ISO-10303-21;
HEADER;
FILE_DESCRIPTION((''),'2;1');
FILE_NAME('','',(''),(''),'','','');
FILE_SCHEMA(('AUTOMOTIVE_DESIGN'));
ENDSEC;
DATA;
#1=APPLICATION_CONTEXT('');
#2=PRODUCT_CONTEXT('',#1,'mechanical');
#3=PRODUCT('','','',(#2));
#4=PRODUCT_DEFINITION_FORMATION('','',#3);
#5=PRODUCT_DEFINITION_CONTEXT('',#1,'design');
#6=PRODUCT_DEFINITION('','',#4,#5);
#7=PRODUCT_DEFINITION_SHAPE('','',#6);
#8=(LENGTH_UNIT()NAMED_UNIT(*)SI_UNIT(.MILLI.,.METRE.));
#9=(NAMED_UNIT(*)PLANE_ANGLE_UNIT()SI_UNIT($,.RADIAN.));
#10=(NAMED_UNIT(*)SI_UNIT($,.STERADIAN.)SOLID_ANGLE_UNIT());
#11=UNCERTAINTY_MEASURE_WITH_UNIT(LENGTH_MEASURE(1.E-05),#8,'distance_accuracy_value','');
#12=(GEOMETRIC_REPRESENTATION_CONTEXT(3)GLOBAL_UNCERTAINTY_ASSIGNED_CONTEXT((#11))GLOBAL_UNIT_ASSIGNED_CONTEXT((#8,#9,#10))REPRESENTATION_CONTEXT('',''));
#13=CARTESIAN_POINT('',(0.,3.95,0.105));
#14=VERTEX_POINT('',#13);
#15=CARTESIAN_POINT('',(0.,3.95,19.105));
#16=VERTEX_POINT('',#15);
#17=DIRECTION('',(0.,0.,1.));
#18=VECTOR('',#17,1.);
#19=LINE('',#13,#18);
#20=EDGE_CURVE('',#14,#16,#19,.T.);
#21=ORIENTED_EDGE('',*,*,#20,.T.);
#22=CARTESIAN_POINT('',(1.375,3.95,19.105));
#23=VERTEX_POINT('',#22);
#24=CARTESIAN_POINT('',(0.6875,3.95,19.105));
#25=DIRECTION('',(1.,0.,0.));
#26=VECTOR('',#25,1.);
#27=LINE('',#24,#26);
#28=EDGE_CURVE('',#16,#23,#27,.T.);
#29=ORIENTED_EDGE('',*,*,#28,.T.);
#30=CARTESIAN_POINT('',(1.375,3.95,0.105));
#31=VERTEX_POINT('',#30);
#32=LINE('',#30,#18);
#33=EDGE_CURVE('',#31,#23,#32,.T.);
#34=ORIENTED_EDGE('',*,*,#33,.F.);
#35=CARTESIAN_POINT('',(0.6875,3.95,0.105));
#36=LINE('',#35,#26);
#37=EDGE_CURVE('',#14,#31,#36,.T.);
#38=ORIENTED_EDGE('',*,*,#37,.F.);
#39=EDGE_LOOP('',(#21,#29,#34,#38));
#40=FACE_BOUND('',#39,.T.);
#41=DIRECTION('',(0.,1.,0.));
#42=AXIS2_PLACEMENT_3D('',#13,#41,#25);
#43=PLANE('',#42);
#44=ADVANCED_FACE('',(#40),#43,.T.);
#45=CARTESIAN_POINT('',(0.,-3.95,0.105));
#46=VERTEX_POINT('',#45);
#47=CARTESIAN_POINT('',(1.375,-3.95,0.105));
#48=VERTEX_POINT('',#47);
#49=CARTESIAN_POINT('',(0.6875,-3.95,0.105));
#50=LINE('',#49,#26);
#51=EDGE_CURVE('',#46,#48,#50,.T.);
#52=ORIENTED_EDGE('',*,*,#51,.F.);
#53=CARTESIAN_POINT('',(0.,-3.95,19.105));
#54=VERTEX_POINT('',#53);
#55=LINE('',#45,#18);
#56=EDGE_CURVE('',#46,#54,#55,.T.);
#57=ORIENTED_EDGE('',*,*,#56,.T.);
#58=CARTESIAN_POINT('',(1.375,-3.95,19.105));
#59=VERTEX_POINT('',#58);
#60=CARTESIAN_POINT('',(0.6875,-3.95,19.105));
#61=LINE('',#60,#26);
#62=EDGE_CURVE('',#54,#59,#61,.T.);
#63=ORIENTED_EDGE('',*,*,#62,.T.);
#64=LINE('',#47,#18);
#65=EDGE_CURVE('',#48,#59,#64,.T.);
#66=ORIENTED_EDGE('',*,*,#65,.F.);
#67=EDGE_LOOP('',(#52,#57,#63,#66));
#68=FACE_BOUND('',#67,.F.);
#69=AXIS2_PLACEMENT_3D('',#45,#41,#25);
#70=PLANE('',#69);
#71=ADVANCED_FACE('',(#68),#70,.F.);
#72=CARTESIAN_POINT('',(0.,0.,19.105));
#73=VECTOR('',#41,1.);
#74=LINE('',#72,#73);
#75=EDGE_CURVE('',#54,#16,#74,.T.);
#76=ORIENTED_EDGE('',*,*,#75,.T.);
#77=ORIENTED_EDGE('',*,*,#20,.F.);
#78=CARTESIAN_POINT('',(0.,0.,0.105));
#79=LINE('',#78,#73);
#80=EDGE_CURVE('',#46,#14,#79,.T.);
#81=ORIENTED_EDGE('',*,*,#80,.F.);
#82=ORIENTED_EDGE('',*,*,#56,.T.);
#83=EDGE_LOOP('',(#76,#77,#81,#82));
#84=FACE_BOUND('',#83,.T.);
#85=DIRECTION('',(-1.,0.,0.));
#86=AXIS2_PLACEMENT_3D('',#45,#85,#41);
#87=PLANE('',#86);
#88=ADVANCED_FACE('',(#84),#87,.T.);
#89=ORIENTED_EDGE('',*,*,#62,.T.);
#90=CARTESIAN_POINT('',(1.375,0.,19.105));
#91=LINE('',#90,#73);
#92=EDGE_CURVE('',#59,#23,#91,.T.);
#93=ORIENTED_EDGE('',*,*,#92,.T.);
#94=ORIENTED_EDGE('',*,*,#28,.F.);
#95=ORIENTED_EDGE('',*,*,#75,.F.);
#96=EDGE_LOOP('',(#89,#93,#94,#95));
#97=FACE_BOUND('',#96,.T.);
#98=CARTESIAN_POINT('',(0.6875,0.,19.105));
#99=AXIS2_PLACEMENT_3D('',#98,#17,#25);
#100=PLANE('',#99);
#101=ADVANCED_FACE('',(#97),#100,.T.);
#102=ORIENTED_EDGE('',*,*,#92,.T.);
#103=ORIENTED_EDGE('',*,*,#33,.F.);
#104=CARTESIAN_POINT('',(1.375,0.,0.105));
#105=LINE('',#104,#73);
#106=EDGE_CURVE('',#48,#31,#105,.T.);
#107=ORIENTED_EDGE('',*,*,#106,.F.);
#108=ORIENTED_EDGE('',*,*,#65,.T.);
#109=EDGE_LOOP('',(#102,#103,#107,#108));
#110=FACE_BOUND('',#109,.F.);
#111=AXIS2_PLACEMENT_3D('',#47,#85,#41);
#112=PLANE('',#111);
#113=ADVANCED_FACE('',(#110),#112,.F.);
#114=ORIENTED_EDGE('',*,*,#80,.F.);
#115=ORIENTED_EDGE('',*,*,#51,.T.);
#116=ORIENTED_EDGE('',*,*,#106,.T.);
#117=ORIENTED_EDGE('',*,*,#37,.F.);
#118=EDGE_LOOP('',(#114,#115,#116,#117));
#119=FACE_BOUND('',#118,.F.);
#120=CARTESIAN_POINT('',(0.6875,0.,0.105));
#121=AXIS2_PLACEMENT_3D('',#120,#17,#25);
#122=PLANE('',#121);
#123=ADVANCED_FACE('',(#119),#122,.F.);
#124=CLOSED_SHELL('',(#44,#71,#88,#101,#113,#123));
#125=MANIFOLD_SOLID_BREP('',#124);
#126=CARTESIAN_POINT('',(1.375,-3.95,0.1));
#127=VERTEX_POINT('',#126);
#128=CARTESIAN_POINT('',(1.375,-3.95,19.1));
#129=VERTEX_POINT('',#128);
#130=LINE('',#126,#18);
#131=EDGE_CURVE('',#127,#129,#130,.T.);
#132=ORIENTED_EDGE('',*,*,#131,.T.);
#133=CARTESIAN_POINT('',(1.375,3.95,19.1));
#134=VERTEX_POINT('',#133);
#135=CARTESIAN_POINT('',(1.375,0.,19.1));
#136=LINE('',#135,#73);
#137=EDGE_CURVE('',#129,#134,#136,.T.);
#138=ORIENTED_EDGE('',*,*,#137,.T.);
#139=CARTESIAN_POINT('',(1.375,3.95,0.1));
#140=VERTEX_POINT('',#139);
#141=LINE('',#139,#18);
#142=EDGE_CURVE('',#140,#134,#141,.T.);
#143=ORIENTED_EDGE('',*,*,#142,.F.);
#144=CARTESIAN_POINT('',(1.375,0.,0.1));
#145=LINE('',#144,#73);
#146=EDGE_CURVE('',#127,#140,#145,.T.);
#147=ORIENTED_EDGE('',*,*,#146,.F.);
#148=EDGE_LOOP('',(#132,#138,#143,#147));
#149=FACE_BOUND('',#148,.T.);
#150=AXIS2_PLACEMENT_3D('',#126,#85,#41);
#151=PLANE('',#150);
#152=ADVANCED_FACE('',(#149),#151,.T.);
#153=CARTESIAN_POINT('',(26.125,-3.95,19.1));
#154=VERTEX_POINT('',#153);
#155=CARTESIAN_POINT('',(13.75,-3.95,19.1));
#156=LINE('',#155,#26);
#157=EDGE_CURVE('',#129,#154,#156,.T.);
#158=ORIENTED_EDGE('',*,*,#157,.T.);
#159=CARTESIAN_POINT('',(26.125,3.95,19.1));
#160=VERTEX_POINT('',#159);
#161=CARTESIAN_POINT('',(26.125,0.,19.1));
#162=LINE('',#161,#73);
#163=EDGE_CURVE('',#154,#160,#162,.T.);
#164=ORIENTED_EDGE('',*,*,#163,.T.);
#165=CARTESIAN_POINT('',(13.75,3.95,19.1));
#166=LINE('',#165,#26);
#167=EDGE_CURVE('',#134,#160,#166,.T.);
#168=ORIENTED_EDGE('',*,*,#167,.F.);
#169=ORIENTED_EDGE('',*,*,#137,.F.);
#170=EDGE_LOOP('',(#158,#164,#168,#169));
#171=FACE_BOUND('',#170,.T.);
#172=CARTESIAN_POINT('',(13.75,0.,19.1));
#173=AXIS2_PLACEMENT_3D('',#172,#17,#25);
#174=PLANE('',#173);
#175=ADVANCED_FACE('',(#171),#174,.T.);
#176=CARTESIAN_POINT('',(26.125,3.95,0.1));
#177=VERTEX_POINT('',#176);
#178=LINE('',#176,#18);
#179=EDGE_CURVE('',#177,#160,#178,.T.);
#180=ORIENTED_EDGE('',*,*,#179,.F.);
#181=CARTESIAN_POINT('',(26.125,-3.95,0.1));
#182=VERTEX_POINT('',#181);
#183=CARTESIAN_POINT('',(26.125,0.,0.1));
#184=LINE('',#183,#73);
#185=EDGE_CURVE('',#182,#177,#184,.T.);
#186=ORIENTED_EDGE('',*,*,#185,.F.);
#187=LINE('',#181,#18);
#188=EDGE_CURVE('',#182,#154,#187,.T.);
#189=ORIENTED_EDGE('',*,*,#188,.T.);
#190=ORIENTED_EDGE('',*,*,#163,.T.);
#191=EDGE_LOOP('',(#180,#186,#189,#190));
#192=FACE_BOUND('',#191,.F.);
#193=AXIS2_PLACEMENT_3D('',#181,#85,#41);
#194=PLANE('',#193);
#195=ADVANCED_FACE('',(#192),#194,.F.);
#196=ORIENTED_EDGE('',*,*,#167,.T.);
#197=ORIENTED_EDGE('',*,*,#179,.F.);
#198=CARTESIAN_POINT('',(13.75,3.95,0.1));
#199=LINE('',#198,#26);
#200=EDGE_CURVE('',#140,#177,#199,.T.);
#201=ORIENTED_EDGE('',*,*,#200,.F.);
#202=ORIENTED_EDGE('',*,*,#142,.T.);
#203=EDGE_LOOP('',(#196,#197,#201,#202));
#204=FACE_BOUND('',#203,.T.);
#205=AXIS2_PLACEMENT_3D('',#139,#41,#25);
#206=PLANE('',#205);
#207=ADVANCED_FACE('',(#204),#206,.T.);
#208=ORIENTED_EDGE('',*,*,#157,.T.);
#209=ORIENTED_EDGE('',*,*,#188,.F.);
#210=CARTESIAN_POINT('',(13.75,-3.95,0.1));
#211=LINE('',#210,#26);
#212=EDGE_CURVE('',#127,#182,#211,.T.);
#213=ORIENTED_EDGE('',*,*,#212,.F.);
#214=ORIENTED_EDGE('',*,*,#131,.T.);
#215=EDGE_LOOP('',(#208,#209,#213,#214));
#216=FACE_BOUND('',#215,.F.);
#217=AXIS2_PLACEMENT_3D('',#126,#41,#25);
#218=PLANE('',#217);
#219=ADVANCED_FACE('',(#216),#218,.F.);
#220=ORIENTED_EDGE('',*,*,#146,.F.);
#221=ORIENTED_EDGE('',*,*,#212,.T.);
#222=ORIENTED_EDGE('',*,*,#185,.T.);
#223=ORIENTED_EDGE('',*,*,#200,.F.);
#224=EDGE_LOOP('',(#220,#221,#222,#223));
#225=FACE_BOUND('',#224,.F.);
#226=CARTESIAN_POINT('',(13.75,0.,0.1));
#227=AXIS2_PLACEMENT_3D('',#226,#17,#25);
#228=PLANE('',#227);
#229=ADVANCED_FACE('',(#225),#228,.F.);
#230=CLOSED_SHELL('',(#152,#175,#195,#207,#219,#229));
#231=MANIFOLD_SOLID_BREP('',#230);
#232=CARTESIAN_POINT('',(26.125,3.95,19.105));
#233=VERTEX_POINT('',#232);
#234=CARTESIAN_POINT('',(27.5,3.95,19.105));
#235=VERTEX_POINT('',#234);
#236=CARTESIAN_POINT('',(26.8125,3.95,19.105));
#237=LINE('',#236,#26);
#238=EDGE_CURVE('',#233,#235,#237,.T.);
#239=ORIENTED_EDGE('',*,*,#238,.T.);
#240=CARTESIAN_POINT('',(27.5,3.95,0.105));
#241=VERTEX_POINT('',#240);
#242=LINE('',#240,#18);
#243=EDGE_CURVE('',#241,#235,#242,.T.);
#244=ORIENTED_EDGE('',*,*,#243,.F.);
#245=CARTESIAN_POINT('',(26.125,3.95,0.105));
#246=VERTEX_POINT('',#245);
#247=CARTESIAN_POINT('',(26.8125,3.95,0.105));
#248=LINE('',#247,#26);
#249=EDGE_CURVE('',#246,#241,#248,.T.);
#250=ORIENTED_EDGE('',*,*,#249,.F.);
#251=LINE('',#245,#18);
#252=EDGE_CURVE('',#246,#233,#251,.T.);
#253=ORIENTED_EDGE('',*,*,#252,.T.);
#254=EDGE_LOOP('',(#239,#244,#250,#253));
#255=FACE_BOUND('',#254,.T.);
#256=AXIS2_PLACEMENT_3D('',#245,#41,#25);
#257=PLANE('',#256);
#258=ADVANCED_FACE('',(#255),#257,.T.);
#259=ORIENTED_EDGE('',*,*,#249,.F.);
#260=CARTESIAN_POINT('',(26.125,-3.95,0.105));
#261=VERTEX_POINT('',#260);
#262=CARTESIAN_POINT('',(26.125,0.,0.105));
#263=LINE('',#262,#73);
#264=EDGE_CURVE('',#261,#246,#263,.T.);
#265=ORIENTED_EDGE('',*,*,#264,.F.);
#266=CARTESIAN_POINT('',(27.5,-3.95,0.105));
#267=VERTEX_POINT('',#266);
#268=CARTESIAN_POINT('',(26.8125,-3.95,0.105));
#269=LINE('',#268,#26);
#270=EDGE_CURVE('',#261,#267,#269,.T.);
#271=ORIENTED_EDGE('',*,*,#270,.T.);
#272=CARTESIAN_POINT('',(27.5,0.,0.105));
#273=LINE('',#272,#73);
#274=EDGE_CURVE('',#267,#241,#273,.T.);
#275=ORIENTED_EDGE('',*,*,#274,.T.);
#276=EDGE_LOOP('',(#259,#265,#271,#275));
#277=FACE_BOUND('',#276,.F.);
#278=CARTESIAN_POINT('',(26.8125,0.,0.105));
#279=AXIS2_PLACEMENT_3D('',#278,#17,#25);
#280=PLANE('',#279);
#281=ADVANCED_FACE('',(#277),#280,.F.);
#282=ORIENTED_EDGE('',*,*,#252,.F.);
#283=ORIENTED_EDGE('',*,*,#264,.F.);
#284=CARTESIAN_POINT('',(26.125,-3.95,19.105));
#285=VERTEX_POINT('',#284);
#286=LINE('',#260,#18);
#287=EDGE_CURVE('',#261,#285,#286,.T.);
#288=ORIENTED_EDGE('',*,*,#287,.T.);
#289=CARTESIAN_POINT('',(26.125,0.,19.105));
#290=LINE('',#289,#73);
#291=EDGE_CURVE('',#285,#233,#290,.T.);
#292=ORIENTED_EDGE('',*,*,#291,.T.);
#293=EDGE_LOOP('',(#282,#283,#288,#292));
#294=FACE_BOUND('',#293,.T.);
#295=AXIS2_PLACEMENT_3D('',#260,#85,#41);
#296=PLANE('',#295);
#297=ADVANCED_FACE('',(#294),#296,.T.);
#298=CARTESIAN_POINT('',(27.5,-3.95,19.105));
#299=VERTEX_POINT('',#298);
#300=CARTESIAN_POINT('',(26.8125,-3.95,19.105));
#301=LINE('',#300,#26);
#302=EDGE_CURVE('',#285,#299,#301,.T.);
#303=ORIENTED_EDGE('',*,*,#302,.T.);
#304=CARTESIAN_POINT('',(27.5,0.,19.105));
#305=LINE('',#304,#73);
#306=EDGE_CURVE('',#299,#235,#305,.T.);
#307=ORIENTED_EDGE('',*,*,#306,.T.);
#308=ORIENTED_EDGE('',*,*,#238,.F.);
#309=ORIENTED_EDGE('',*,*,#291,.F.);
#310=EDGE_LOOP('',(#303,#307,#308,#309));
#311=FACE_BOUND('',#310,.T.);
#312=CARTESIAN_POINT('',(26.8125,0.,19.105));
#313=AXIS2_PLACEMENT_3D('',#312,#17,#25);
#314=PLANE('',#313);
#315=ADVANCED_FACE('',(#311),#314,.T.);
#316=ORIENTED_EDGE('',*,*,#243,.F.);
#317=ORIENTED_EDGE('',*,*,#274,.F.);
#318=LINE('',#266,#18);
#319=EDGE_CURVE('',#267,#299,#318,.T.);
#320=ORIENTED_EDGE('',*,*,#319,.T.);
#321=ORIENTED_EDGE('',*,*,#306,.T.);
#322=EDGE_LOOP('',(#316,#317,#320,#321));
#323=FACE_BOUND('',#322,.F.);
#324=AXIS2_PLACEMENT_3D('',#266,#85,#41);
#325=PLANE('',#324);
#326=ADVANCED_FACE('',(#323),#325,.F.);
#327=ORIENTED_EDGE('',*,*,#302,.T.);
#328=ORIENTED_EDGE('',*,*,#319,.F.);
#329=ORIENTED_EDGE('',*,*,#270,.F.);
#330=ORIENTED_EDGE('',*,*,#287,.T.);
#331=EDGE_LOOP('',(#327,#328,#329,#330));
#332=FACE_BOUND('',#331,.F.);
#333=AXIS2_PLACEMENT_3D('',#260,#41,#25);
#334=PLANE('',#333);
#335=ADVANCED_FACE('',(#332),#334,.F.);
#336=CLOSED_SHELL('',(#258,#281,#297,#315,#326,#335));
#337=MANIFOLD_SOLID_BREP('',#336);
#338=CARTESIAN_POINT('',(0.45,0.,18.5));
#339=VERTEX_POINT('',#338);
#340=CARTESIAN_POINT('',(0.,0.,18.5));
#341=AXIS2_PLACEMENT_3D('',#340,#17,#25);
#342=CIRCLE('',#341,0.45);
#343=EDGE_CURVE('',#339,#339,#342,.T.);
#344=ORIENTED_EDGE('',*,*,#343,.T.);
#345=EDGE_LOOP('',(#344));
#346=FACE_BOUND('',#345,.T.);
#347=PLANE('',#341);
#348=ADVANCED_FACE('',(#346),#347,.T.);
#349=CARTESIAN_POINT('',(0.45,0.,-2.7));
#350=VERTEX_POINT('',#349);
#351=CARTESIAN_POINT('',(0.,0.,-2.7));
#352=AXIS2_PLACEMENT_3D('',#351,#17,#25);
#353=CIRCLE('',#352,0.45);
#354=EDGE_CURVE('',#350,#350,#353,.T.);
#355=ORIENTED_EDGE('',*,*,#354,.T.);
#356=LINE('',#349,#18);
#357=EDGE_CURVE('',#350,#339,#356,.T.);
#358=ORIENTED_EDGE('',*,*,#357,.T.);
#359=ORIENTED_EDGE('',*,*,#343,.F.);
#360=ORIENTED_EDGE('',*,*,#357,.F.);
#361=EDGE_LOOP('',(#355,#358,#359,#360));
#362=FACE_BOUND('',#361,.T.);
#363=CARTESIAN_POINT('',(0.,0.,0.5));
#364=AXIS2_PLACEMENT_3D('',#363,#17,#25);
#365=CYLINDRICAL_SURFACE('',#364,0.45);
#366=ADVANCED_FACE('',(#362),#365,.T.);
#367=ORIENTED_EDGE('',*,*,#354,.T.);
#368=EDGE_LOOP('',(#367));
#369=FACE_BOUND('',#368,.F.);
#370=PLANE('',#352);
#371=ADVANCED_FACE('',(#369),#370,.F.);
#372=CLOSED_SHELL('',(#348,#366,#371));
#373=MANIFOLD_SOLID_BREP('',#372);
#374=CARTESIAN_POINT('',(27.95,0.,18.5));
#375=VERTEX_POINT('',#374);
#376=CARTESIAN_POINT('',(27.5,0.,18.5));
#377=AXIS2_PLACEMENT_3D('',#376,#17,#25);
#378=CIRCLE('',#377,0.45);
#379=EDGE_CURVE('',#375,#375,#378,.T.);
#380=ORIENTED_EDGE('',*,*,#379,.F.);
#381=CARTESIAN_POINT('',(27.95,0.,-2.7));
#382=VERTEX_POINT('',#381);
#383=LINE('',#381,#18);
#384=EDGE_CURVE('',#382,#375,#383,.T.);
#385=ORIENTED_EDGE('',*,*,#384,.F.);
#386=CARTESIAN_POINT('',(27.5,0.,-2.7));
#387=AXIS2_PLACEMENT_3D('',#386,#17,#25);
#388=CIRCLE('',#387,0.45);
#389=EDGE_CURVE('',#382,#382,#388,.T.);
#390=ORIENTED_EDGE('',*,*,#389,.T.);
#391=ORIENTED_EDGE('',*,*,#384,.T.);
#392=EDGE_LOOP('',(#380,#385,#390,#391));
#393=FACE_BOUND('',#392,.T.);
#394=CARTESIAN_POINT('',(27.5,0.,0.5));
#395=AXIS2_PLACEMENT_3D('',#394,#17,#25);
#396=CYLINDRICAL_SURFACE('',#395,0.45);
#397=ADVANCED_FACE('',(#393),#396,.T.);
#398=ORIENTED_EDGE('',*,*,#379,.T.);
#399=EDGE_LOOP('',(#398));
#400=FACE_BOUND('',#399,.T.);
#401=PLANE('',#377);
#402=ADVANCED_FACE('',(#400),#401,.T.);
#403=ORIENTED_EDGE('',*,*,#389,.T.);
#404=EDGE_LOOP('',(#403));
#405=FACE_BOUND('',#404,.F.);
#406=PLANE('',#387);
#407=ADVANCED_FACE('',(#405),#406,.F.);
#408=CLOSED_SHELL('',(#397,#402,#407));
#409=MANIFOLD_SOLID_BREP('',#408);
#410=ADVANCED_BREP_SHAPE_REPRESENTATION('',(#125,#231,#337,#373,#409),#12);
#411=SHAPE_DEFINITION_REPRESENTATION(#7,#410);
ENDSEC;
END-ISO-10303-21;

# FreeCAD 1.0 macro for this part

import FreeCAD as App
import Part
import Sketcher
Q = App.Units.Quantity

doc = App.newDocument("Part")
body = doc.addObject("PartDesign::Body", "Body")

# Sketch on XY plane
sketch1 = body.newObject("Sketcher::SketchObject", "Sketch")
sketch1.AttachmentSupport = (doc.getObject("XY_Plane"), [""])
sketch1.MapMode = "FlatFace"
sketch1.AttachmentOffset = App.Placement(App.Vector(0, 0, 0.1), App.Rotation())
sketch1.addGeometry([
    Part.LineSegment(App.Vector(1, 4, 0), App.Vector(1, -4, 0)),
    Part.LineSegment(App.Vector(1, -4, 0), App.Vector(26, -4, 0)),
    Part.LineSegment(App.Vector(26, -4, 0), App.Vector(26, 4, 0)),
    Part.LineSegment(App.Vector(26, 4, 0), App.Vector(1, 4, 0)),
], False)
sketch1.addConstraint([
    Sketcher.Constraint("Coincident", 0, 2, 1, 1),
    Sketcher.Constraint("Coincident", 1, 2, 2, 1),
    Sketcher.Constraint("Coincident", 2, 2, 3, 1),
    Sketcher.Constraint("Coincident", 3, 2, 0, 1),
    Sketcher.Constraint("Vertical", 0),
    Sketcher.Constraint("Horizontal", 1),
    Sketcher.Constraint("Vertical", 2),
    Sketcher.Constraint("Horizontal", 3),
    Sketcher.Constraint("DistanceY", 0, 2, 0, 1, Q("7.9 mm")),
    Sketcher.Constraint("DistanceX", 1, 1, 1, 2, Q("24.75 mm")),
    Sketcher.Constraint("DistanceY", 0, 2, -1, 1, Q("3.95 mm")),
    Sketcher.Constraint("DistanceX", -1, 1, 0, 2, Q("1.375 mm")),
])
pad1 = body.newObject("PartDesign::Pad", "Pad")
pad1.Profile = sketch1
pad1.Length = 19
body2 = doc.addObject("PartDesign::Body", "Body001")
body2.AllowCompound = True

# Sketch on XY plane
sketch2 = body2.newObject("Sketcher::SketchObject", "Sketch001")
sketch2.AttachmentSupport = (doc.getObject("XY_Plane001"), [""])
sketch2.MapMode = "FlatFace"
sketch2.AttachmentOffset = App.Placement(App.Vector(0, 0, 0.5), App.Rotation())
sketch2.addGeometry([
    Part.Circle(App.Vector(0, 0, 0), App.Vector(0, 0, 1), 0.45),
    Part.Circle(App.Vector(27.5, 0, 0), App.Vector(0, 0, 1), 0.45),
], False)
sketch2.addConstraint([
    Sketcher.Constraint("Coincident", 0, 3, -1, 1),
    Sketcher.Constraint("Equal", 0, 1),
    Sketcher.Constraint("PointOnObject", 1, 3, -1),
    Sketcher.Constraint("Diameter", 0, Q("0.9 mm")),
    Sketcher.Constraint("DistanceX", -1, 1, 1, 3, Q("27.5 mm")),
])
pad2 = body2.newObject("PartDesign::Pad", "Pad001")
pad2.Profile = sketch2
pad2.Type = "TwoLengths"
pad2.Length = 18
pad2.Length2 = 3.2
body3 = doc.addObject("PartDesign::Body", "Body002")
body3.AllowCompound = True

# Sketch on XY plane
sketch3 = body3.newObject("Sketcher::SketchObject", "Sketch002")
sketch3.AttachmentSupport = (doc.getObject("XY_Plane002"), [""])
sketch3.MapMode = "FlatFace"
sketch3.AttachmentOffset = App.Placement(App.Vector(0, 0, 0.105), App.Rotation())
sketch3.addGeometry([
    Part.LineSegment(App.Vector(0, 4, 0), App.Vector(0, -4, 0)),  # 0
    Part.LineSegment(App.Vector(0, -4, 0), App.Vector(1.4, -4, 0)),  # 1
    Part.LineSegment(App.Vector(1.4, -4, 0), App.Vector(1.4, 4, 0)),  # 2
    Part.LineSegment(App.Vector(1.4, 4, 0), App.Vector(0, 4, 0)),  # 3
    Part.LineSegment(App.Vector(26.1, 4, 0), App.Vector(26.1, -4, 0)),  # 4
    Part.LineSegment(App.Vector(26.1, -4, 0), App.Vector(27.5, -4, 0)),  # 5
    Part.LineSegment(App.Vector(27.5, -4, 0), App.Vector(27.5, 4, 0)),  # 6
    Part.LineSegment(App.Vector(27.5, 4, 0), App.Vector(26.1, 4, 0)),  # 7
], False)
sketch3.addConstraint([
    Sketcher.Constraint("Coincident", 0, 2, 1, 1),
    Sketcher.Constraint("Coincident", 1, 2, 2, 1),
    Sketcher.Constraint("Coincident", 2, 2, 3, 1),
    Sketcher.Constraint("Coincident", 3, 2, 0, 1),
    Sketcher.Constraint("Coincident", 4, 2, 5, 1),
    Sketcher.Constraint("Coincident", 5, 2, 6, 1),
    Sketcher.Constraint("Coincident", 6, 2, 7, 1),
    Sketcher.Constraint("Coincident", 7, 2, 4, 1),
    Sketcher.Constraint("Vertical", 0),
    Sketcher.Constraint("Horizontal", 1),
    Sketcher.Constraint("Vertical", 2),
    Sketcher.Constraint("Horizontal", 3),
    Sketcher.Constraint("Vertical", 4),
    Sketcher.Constraint("Horizontal", 5),
    Sketcher.Constraint("Vertical", 6),
    Sketcher.Constraint("Horizontal", 7),
    Sketcher.Constraint("Symmetric", 0, 2, 3, 2, -1, 1),
    Sketcher.Constraint("Horizontal", 1, 2, 4, 2),
    Sketcher.Constraint("Horizontal", 3, 2, 6, 2),
    Sketcher.Constraint("Equal", 3, 5),
    Sketcher.Constraint("DistanceY", 0, 2, 0, 1, Q("7.9 mm")),
    Sketcher.Constraint("DistanceX", -1, 1, 5, 2, Q("27.5 mm")),
    Sketcher.Constraint("DistanceX", 1, 1, 1, 2, Q("1.375 mm")),
])
pad3 = body3.newObject("PartDesign::Pad", "Pad002")
pad3.Profile = sketch3
pad3.Length = 19

doc.recompute()
